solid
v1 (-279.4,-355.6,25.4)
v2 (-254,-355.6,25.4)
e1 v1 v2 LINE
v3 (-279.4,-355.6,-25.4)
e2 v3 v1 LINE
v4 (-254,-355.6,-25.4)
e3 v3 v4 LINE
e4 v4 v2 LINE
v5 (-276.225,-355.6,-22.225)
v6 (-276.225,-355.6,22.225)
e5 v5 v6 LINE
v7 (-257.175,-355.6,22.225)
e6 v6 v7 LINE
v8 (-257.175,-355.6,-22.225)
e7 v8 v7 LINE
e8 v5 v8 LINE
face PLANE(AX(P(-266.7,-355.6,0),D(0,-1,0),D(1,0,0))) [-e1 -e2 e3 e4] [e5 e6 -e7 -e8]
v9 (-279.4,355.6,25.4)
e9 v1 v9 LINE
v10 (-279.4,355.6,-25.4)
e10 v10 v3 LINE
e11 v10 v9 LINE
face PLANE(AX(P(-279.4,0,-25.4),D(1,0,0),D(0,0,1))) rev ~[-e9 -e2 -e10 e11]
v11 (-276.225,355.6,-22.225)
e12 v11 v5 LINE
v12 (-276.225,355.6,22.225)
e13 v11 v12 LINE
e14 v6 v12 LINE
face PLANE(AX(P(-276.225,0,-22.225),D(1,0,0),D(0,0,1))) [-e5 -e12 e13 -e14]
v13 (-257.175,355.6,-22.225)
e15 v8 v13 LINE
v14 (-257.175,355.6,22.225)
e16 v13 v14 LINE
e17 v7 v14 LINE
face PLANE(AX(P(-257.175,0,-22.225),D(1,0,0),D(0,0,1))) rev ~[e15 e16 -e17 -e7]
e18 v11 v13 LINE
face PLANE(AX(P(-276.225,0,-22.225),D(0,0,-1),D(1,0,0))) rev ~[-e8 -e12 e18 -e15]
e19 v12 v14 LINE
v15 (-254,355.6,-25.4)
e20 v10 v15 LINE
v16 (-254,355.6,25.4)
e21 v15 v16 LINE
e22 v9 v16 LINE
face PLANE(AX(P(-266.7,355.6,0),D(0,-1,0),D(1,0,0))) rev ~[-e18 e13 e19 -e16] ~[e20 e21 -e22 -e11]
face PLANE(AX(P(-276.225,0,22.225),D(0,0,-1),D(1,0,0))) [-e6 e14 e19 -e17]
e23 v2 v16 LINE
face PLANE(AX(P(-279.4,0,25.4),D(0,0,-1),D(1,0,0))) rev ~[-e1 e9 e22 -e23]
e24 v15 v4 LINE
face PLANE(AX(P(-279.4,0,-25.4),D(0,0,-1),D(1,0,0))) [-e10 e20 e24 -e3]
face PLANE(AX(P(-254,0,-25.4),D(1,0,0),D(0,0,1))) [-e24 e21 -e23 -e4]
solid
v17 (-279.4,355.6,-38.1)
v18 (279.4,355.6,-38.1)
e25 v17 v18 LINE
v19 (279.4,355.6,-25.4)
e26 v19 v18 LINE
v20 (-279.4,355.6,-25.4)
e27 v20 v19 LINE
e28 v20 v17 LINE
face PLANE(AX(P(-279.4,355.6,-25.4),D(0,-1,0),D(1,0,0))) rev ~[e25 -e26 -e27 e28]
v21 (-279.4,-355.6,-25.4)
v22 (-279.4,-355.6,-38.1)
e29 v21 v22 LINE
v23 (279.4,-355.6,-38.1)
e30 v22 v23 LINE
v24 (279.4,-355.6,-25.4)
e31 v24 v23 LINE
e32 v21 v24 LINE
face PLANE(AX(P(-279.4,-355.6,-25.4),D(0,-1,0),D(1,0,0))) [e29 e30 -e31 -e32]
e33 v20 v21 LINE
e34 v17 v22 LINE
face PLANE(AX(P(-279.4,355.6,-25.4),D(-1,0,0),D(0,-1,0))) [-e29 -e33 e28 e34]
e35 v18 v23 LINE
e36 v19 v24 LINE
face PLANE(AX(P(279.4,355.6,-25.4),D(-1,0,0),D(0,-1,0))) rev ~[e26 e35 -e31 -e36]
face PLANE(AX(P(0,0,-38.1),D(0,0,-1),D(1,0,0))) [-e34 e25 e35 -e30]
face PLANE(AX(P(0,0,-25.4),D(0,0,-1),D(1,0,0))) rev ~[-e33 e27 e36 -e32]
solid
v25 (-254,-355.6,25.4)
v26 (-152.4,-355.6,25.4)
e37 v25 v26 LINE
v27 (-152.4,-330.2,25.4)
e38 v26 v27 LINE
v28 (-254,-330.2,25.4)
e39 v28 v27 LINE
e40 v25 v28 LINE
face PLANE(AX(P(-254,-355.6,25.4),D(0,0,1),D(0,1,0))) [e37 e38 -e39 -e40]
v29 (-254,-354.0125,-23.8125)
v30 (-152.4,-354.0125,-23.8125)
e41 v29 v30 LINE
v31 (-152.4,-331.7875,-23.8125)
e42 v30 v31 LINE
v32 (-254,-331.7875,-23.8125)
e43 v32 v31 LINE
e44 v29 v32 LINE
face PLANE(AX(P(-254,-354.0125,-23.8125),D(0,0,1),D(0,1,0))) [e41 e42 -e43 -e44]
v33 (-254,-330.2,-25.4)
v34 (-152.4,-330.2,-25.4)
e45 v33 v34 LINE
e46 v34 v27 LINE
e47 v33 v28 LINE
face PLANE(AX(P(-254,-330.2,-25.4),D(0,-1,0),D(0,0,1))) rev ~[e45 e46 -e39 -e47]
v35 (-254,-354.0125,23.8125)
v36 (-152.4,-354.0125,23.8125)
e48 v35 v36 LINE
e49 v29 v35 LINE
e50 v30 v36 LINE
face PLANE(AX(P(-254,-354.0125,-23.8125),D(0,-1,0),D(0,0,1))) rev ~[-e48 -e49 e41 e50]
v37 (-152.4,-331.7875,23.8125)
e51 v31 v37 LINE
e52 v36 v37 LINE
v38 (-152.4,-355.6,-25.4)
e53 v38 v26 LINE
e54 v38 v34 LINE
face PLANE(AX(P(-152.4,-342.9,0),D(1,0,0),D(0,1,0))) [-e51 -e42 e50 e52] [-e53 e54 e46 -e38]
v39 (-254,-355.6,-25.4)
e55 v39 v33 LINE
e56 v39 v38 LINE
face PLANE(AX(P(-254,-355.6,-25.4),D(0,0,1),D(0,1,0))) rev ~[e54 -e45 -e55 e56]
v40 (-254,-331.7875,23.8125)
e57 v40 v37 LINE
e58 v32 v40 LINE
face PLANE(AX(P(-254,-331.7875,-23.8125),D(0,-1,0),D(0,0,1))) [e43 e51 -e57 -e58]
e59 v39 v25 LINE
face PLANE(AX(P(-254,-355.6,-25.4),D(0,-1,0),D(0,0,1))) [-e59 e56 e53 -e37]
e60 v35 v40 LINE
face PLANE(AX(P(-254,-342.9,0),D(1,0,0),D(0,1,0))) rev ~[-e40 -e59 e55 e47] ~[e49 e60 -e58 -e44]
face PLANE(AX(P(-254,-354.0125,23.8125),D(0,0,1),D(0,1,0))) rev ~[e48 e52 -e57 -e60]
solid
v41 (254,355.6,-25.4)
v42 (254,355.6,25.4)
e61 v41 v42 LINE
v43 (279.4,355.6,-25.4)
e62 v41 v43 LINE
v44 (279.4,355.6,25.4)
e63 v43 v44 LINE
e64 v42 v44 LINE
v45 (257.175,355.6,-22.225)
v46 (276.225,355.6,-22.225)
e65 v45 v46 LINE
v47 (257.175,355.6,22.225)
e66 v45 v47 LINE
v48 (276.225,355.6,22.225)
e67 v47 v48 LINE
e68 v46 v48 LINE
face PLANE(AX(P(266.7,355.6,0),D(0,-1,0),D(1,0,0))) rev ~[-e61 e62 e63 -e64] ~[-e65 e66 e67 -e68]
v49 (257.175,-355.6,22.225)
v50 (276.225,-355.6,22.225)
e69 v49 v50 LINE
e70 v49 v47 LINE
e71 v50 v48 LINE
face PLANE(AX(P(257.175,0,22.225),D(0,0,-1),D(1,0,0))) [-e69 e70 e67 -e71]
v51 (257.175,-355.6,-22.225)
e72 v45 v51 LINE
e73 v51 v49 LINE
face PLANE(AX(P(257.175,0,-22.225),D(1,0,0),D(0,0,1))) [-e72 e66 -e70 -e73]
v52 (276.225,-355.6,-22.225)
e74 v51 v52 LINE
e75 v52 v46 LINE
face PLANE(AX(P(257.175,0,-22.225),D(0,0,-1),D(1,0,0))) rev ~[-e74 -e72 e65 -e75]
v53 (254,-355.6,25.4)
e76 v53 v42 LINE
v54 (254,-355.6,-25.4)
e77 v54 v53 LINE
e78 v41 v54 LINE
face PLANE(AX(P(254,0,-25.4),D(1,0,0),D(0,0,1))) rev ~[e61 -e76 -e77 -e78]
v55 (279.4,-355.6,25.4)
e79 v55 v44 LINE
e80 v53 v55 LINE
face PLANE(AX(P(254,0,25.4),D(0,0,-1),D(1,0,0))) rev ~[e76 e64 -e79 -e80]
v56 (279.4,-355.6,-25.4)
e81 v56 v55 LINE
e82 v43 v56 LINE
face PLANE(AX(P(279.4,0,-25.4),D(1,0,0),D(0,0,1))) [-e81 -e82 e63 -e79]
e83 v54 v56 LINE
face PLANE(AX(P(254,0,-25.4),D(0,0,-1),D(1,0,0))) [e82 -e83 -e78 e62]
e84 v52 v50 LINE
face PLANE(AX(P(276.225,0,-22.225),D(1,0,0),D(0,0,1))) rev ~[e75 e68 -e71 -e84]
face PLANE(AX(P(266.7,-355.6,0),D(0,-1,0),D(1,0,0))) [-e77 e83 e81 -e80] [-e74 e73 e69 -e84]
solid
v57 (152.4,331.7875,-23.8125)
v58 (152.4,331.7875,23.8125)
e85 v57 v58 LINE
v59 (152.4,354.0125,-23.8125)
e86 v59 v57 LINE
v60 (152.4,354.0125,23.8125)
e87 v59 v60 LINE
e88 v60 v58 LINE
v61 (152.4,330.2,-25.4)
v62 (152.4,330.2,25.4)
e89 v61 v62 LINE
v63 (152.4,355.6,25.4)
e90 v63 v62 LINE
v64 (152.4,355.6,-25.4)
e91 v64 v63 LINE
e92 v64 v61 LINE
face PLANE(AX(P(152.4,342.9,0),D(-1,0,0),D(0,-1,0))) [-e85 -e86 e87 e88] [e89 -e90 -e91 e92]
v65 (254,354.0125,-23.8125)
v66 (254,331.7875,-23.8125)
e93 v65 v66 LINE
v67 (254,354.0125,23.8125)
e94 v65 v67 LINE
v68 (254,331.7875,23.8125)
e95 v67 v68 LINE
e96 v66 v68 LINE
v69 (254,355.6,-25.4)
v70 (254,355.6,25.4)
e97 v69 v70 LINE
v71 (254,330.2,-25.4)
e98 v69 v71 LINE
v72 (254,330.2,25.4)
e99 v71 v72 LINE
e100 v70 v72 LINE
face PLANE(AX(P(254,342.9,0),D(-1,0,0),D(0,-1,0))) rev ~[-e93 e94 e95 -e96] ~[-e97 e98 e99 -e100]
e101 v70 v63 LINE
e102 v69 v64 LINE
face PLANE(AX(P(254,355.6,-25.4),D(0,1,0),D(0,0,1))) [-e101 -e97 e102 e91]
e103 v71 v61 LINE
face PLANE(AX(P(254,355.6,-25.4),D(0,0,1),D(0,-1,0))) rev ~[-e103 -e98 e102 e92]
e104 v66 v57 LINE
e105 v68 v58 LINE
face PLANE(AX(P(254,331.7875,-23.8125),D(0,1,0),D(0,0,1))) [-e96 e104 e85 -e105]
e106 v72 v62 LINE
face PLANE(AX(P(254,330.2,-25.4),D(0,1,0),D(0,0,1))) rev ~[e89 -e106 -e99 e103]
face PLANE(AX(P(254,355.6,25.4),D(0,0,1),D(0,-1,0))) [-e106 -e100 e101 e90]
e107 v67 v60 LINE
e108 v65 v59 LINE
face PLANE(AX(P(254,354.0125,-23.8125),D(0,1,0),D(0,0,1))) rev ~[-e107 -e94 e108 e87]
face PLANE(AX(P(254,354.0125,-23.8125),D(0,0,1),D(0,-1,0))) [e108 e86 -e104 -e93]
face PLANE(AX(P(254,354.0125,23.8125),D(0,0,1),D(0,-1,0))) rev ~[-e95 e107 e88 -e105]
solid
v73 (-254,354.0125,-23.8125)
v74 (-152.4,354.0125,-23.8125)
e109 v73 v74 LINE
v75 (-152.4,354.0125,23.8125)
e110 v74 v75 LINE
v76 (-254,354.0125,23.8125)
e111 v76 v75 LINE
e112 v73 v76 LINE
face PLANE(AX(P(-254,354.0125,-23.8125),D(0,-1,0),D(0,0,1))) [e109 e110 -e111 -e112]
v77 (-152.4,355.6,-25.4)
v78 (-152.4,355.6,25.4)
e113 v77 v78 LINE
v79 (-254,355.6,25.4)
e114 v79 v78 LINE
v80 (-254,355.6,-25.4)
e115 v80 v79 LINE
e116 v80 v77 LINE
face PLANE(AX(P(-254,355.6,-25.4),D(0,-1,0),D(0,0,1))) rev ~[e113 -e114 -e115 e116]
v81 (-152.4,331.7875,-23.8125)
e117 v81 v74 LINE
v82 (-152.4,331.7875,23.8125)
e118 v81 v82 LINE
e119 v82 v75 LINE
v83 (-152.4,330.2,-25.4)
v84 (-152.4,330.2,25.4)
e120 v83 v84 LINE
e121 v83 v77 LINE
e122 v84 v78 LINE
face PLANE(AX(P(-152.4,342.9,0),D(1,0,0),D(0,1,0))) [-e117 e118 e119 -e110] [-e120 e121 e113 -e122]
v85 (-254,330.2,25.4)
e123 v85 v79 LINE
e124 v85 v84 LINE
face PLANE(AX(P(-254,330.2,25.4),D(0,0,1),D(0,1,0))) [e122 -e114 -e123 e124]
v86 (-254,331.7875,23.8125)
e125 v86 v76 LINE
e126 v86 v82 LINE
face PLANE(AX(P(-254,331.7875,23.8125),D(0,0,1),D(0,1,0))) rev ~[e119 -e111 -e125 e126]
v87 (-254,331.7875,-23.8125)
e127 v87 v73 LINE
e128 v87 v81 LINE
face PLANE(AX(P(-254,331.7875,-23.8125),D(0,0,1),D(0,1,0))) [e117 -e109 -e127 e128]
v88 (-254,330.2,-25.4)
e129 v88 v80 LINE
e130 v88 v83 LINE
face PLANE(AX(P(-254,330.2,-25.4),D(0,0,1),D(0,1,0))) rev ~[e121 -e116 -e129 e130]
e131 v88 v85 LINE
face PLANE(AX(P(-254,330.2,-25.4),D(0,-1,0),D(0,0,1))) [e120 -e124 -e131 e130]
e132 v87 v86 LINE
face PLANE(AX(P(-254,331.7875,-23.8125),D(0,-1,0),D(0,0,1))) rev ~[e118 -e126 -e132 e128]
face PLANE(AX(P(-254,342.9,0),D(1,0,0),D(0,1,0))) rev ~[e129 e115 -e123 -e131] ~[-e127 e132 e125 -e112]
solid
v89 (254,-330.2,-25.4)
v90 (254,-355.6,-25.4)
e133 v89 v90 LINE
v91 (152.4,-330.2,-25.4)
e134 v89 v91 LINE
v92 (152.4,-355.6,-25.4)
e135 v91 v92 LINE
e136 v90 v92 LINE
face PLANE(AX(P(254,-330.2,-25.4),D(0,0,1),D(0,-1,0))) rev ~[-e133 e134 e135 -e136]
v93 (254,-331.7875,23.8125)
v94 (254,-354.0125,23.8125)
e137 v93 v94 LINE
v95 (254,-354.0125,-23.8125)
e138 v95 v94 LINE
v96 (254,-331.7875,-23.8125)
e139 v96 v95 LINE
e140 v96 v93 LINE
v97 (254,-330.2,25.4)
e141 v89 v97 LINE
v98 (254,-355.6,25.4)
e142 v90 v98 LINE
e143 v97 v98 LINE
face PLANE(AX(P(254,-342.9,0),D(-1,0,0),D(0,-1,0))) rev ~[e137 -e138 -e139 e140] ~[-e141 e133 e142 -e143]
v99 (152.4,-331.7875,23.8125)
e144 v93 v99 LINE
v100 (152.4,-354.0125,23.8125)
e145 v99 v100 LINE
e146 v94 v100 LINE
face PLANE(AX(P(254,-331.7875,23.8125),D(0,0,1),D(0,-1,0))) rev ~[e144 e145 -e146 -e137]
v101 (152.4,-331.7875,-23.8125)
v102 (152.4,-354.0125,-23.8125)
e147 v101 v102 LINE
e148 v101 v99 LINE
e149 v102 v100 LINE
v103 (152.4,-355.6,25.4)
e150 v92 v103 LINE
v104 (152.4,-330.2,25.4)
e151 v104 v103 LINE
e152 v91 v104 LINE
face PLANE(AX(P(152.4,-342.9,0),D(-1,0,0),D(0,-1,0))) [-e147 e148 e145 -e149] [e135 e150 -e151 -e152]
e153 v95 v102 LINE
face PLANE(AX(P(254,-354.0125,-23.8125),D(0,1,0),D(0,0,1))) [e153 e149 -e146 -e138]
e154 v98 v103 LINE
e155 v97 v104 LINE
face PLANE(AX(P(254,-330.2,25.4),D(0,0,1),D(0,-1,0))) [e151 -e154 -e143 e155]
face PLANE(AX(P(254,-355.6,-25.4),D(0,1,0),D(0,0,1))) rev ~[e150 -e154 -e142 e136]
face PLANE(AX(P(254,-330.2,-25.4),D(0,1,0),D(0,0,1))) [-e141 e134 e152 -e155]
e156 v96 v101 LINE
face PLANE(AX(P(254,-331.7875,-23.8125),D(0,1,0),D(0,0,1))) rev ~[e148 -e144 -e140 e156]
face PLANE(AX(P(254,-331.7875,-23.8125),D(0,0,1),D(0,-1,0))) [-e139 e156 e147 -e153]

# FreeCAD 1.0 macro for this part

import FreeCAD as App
import Part
import Sketcher
from FreeCAD import Vector
Q = App.Units.Quantity


def add_polygon(sketch, points):
    """Adds a closed chain of lines whose ends are joined by coincident constraints."""
    first, n = sketch.GeometryCount, len(points)
    for a, b in zip(points, points[1:] + points[:1]):
        sketch.addGeometry(Part.LineSegment(App.Vector(*a, 0), App.Vector(*b, 0)), False)
    for i in range(n):
        sketch.addConstraint(Sketcher.Constraint("Coincident", first + i, 2, first + (i + 1) % n, 1))

doc = App.newDocument("Part")
params = doc.addObject("Spreadsheet::Sheet", "Params")
for row, (alias, value) in enumerate([
    ("sketch1_width", "1 in"),
    ("sketch1_height", "2 in"),
    ("sketch1_width2", "0.75 in"),
    ("sketch1_height2", "1.75 in"),
    ("pad1_length", "14 in"),
    ("pad1_length2", "14 in"),
    ("sketch2_width", "22 in"),
    ("sketch2_height", "28 in"),
    ("pad2_length", "0.5 in"),
    ("sketch3_width", "1 in"),
    ("sketch3_height", "2 in"),
    ("sketch3_width2", "0.875 in"),
    ("sketch3_height2", "1.875 in"),
    ("pad3_length", "4 in"),
    ("sketch4_width", "1 in"),
    ("sketch4_height", "2 in"),
    ("sketch4_width2", "0.875 in"),
    ("sketch4_height2", "1.875 in"),
    ("pad4_length", "4 in"),
], start=1):
    params.set(f"A{row}", alias)
    params.set(f"B{row}", "=" + value)
    params.setAlias(f"B{row}", alias)

body = doc.addObject("PartDesign::Body", "Body")
body.AllowCompound = True

# Sketch on XZ plane
sketch1 = body.newObject("Sketcher::SketchObject", "Sketch")
sketch1.AttachmentSupport = (doc.getObject("XZ_Plane"), [""])
sketch1.MapMode = "FlatFace"
add_polygon(sketch1, [(-279, 25), (-279, -25), (-254, -25), (-254, 25)])  # lines 0-3
add_polygon(sketch1, [(-257, -22), (-276, -22), (-276, 22), (-257, 22)])  # lines 4-7
add_polygon(sketch1, [(254, 25), (254, -25), (279, -25), (279, 25)])  # lines 8-11
add_polygon(sketch1, [(276, -22), (257, -22), (257, 22), (276, 22)])  # lines 12-15
sketch1.addConstraint(Sketcher.Constraint("Vertical", 0))
sketch1.addConstraint(Sketcher.Constraint("Horizontal", 1))
sketch1.addConstraint(Sketcher.Constraint("Vertical", 2))
sketch1.addConstraint(Sketcher.Constraint("Horizontal", 3))
sketch1.addConstraint(Sketcher.Constraint("Horizontal", 4))
sketch1.addConstraint(Sketcher.Constraint("Vertical", 5))
sketch1.addConstraint(Sketcher.Constraint("Horizontal", 6))
sketch1.addConstraint(Sketcher.Constraint("Vertical", 7))
sketch1.addConstraint(Sketcher.Constraint("Vertical", 8))
sketch1.addConstraint(Sketcher.Constraint("Horizontal", 9))
sketch1.addConstraint(Sketcher.Constraint("Vertical", 10))
sketch1.addConstraint(Sketcher.Constraint("Horizontal", 11))
sketch1.addConstraint(Sketcher.Constraint("Horizontal", 12))
sketch1.addConstraint(Sketcher.Constraint("Vertical", 13))
sketch1.addConstraint(Sketcher.Constraint("Horizontal", 14))
sketch1.addConstraint(Sketcher.Constraint("Vertical", 15))
sketch1.addConstraint(Sketcher.Constraint("Symmetric", 2, 2, 8, 2, -1, 1))
sketch1.addConstraint(Sketcher.Constraint("Symmetric", 0, 2, 10, 2, -1, 1))
sketch1.addConstraint(Sketcher.Constraint("Symmetric", 6, 2, 12, 2, -1, 1))
sketch1.addConstraint(Sketcher.Constraint("Symmetric", 4, 2, 14, 2, -1, 1))
sketch1.addConstraint(Sketcher.Constraint("Horizontal", 1, 2, 8, 2))
sketch1.addConstraint(Sketcher.Constraint("Horizontal", 7, 2, 12, 2))
sketch1.addConstraint(Sketcher.Constraint("DistanceX", 1, 1, 1, 2, Q("1 in")))
sketch1.addConstraint(Sketcher.Constraint("DistanceY", 0, 2, 0, 1, Q("2 in")))
sketch1.addConstraint(Sketcher.Constraint("DistanceX", 0, 2, -1, 1, Q("11 in")))
sketch1.addConstraint(Sketcher.Constraint("DistanceX", 4, 2, 4, 1, Q("0.75 in")))
sketch1.addConstraint(Sketcher.Constraint("DistanceY", 5, 1, 5, 2, Q("1.75 in")))
sketch1.addConstraint(Sketcher.Constraint("DistanceX", 4, 2, -1, 1, Q("10.875 in")))
sketch1.setExpression("Constraints[38]", "Params.sketch1_width")
sketch1.setExpression("Constraints[39]", "Params.sketch1_height")
sketch1.setExpression("Constraints[41]", "Params.sketch1_width2")
sketch1.setExpression("Constraints[42]", "Params.sketch1_height2")
pad1 = body.newObject("PartDesign::Pad", "Pad")
pad1.Profile = sketch1
pad1.Type = "TwoLengths"
pad1.setExpression("Length", "Params.pad1_length")
pad1.setExpression("Length2", "Params.pad1_length2")
body2 = doc.addObject("PartDesign::Body", "Body001")

# Sketch on XY plane
sketch2 = body2.newObject("Sketcher::SketchObject", "Sketch001")
sketch2.AttachmentSupport = (doc.getObject("XY_Plane001"), [""])
sketch2.MapMode = "FlatFace"
sketch2.AttachmentOffset = App.Placement(Vector(0, 0, -1 * 25.4), App.Rotation())
add_polygon(sketch2, [(-279, -356), (-279, 356), (279, 356), (279, -356)])  # lines 0-3
sketch2.addConstraint(Sketcher.Constraint("Vertical", 0))
sketch2.addConstraint(Sketcher.Constraint("Horizontal", 1))
sketch2.addConstraint(Sketcher.Constraint("Vertical", 2))
sketch2.addConstraint(Sketcher.Constraint("Horizontal", 3))
sketch2.addConstraint(Sketcher.Constraint("Symmetric", 0, 2, 2, 2, -1, 1))
sketch2.addConstraint(Sketcher.Constraint("DistanceX", 1, 1, 1, 2, Q("22 in")))
sketch2.addConstraint(Sketcher.Constraint("DistanceY", 0, 1, 0, 2, Q("28 in")))
sketch2.setExpression("Constraints[9]", "Params.sketch2_width")
sketch2.setExpression("Constraints[10]", "Params.sketch2_height")
pad2 = body2.newObject("PartDesign::Pad", "Pad001")
pad2.Profile = sketch2
pad2.setExpression("Length", "Params.pad2_length")
pad2.Reversed = True
body3 = doc.addObject("PartDesign::Body", "Body002")
body3.AllowCompound = True

# Sketch on YZ plane
sketch3 = body3.newObject("Sketcher::SketchObject", "Sketch002")
sketch3.AttachmentSupport = (doc.getObject("YZ_Plane002"), [""])
sketch3.MapMode = "FlatFace"
sketch3.AttachmentOffset = App.Placement(Vector(0, 0, 10 * 25.4), App.Rotation())
add_polygon(sketch3, [(356, 25), (356, -25), (330, -25), (330, 25)])  # lines 0-3
add_polygon(sketch3, [(332, -24), (354, -24), (354, 24), (332, 24)])  # lines 4-7
add_polygon(sketch3, [(-330, 25), (-330, -25), (-356, -25), (-356, 25)])  # lines 8-11
add_polygon(sketch3, [(-354, -24), (-332, -24), (-332, 24), (-354, 24)])  # lines 12-15
sketch3.addConstraint(Sketcher.Constraint("Vertical", 0))
sketch3.addConstraint(Sketcher.Constraint("Horizontal", 1))
sketch3.addConstraint(Sketcher.Constraint("Vertical", 2))
sketch3.addConstraint(Sketcher.Constraint("Horizontal", 3))
sketch3.addConstraint(Sketcher.Constraint("Horizontal", 4))
sketch3.addConstraint(Sketcher.Constraint("Vertical", 5))
sketch3.addConstraint(Sketcher.Constraint("Horizontal", 6))
sketch3.addConstraint(Sketcher.Constraint("Vertical", 7))
sketch3.addConstraint(Sketcher.Constraint("Vertical", 8))
sketch3.addConstraint(Sketcher.Constraint("Horizontal", 9))
sketch3.addConstraint(Sketcher.Constraint("Vertical", 10))
sketch3.addConstraint(Sketcher.Constraint("Horizontal", 11))
sketch3.addConstraint(Sketcher.Constraint("Horizontal", 12))
sketch3.addConstraint(Sketcher.Constraint("Vertical", 13))
sketch3.addConstraint(Sketcher.Constraint("Horizontal", 14))
sketch3.addConstraint(Sketcher.Constraint("Vertical", 15))
sketch3.addConstraint(Sketcher.Constraint("Symmetric", 2, 2, 8, 2, -1, 1))
sketch3.addConstraint(Sketcher.Constraint("Symmetric", 0, 2, 10, 2, -1, 1))
sketch3.addConstraint(Sketcher.Constraint("Symmetric", 6, 2, 12, 2, -1, 1))
sketch3.addConstraint(Sketcher.Constraint("Symmetric", 4, 2, 14, 2, -1, 1))
sketch3.addConstraint(Sketcher.Constraint("Horizontal", 1, 2, 8, 2))
sketch3.addConstraint(Sketcher.Constraint("Horizontal", 7, 2, 12, 2))
sketch3.addConstraint(Sketcher.Constraint("DistanceX", 1, 2, 1, 1, Q("1 in")))
sketch3.addConstraint(Sketcher.Constraint("DistanceY", 0, 2, 0, 1, Q("2 in")))
sketch3.addConstraint(Sketcher.Constraint("DistanceX", -1, 1, 0, 2, Q("14 in")))
sketch3.addConstraint(Sketcher.Constraint("DistanceX", 4, 1, 4, 2, Q("0.875 in")))
sketch3.addConstraint(Sketcher.Constraint("DistanceY", 5, 1, 5, 2, Q("1.875 in")))
sketch3.addConstraint(Sketcher.Constraint("DistanceX", -1, 1, 4, 2, Q("13.9375 in")))
sketch3.setExpression("Constraints[38]", "Params.sketch3_width")
sketch3.setExpression("Constraints[39]", "Params.sketch3_height")
sketch3.setExpression("Constraints[41]", "Params.sketch3_width2")
sketch3.setExpression("Constraints[42]", "Params.sketch3_height2")
pad3 = body3.newObject("PartDesign::Pad", "Pad002")
pad3.Profile = sketch3
pad3.setExpression("Length", "Params.pad3_length")
pad3.Reversed = True
body4 = doc.addObject("PartDesign::Body", "Body003")
body4.AllowCompound = True

# Sketch on YZ plane
sketch4 = body4.newObject("Sketcher::SketchObject", "Sketch003")
sketch4.AttachmentSupport = (doc.getObject("YZ_Plane003"), [""])
sketch4.MapMode = "FlatFace"
sketch4.AttachmentOffset = App.Placement(Vector(0, 0, -10 * 25.4), App.Rotation())
add_polygon(sketch4, [(-356, 25), (-356, -25), (-330, -25), (-330, 25)])  # lines 0-3
add_polygon(sketch4, [(-332, -24), (-354, -24), (-354, 24), (-332, 24)])  # lines 4-7
add_polygon(sketch4, [(330, 25), (330, -25), (356, -25), (356, 25)])  # lines 8-11
add_polygon(sketch4, [(354, -24), (332, -24), (332, 24), (354, 24)])  # lines 12-15
sketch4.addConstraint(Sketcher.Constraint("Vertical", 0))
sketch4.addConstraint(Sketcher.Constraint("Horizontal", 1))
sketch4.addConstraint(Sketcher.Constraint("Vertical", 2))
sketch4.addConstraint(Sketcher.Constraint("Horizontal", 3))
sketch4.addConstraint(Sketcher.Constraint("Horizontal", 4))
sketch4.addConstraint(Sketcher.Constraint("Vertical", 5))
sketch4.addConstraint(Sketcher.Constraint("Horizontal", 6))
sketch4.addConstraint(Sketcher.Constraint("Vertical", 7))
sketch4.addConstraint(Sketcher.Constraint("Vertical", 8))
sketch4.addConstraint(Sketcher.Constraint("Horizontal", 9))
sketch4.addConstraint(Sketcher.Constraint("Vertical", 10))
sketch4.addConstraint(Sketcher.Constraint("Horizontal", 11))
sketch4.addConstraint(Sketcher.Constraint("Horizontal", 12))
sketch4.addConstraint(Sketcher.Constraint("Vertical", 13))
sketch4.addConstraint(Sketcher.Constraint("Horizontal", 14))
sketch4.addConstraint(Sketcher.Constraint("Vertical", 15))
sketch4.addConstraint(Sketcher.Constraint("Symmetric", 2, 2, 8, 2, -1, 1))
sketch4.addConstraint(Sketcher.Constraint("Symmetric", 0, 2, 10, 2, -1, 1))
sketch4.addConstraint(Sketcher.Constraint("Symmetric", 6, 2, 12, 2, -1, 1))
sketch4.addConstraint(Sketcher.Constraint("Symmetric", 4, 2, 14, 2, -1, 1))
sketch4.addConstraint(Sketcher.Constraint("Horizontal", 1, 2, 8, 2))
sketch4.addConstraint(Sketcher.Constraint("Horizontal", 7, 2, 12, 2))
sketch4.addConstraint(Sketcher.Constraint("DistanceX", 1, 1, 1, 2, Q("1 in")))
sketch4.addConstraint(Sketcher.Constraint("DistanceY", 0, 2, 0, 1, Q("2 in")))
sketch4.addConstraint(Sketcher.Constraint("DistanceX", 0, 2, -1, 1, Q("14 in")))
sketch4.addConstraint(Sketcher.Constraint("DistanceX", 4, 2, 4, 1, Q("0.875 in")))
sketch4.addConstraint(Sketcher.Constraint("DistanceY", 5, 1, 5, 2, Q("1.875 in")))
sketch4.addConstraint(Sketcher.Constraint("DistanceX", 4, 2, -1, 1, Q("13.9375 in")))
sketch4.setExpression("Constraints[38]", "Params.sketch4_width")
sketch4.setExpression("Constraints[39]", "Params.sketch4_height")
sketch4.setExpression("Constraints[41]", "Params.sketch4_width2")
sketch4.setExpression("Constraints[42]", "Params.sketch4_height2")
pad4 = body4.newObject("PartDesign::Pad", "Pad003")
pad4.Profile = sketch4
pad4.setExpression("Length", "Params.pad4_length")

doc.recompute()
